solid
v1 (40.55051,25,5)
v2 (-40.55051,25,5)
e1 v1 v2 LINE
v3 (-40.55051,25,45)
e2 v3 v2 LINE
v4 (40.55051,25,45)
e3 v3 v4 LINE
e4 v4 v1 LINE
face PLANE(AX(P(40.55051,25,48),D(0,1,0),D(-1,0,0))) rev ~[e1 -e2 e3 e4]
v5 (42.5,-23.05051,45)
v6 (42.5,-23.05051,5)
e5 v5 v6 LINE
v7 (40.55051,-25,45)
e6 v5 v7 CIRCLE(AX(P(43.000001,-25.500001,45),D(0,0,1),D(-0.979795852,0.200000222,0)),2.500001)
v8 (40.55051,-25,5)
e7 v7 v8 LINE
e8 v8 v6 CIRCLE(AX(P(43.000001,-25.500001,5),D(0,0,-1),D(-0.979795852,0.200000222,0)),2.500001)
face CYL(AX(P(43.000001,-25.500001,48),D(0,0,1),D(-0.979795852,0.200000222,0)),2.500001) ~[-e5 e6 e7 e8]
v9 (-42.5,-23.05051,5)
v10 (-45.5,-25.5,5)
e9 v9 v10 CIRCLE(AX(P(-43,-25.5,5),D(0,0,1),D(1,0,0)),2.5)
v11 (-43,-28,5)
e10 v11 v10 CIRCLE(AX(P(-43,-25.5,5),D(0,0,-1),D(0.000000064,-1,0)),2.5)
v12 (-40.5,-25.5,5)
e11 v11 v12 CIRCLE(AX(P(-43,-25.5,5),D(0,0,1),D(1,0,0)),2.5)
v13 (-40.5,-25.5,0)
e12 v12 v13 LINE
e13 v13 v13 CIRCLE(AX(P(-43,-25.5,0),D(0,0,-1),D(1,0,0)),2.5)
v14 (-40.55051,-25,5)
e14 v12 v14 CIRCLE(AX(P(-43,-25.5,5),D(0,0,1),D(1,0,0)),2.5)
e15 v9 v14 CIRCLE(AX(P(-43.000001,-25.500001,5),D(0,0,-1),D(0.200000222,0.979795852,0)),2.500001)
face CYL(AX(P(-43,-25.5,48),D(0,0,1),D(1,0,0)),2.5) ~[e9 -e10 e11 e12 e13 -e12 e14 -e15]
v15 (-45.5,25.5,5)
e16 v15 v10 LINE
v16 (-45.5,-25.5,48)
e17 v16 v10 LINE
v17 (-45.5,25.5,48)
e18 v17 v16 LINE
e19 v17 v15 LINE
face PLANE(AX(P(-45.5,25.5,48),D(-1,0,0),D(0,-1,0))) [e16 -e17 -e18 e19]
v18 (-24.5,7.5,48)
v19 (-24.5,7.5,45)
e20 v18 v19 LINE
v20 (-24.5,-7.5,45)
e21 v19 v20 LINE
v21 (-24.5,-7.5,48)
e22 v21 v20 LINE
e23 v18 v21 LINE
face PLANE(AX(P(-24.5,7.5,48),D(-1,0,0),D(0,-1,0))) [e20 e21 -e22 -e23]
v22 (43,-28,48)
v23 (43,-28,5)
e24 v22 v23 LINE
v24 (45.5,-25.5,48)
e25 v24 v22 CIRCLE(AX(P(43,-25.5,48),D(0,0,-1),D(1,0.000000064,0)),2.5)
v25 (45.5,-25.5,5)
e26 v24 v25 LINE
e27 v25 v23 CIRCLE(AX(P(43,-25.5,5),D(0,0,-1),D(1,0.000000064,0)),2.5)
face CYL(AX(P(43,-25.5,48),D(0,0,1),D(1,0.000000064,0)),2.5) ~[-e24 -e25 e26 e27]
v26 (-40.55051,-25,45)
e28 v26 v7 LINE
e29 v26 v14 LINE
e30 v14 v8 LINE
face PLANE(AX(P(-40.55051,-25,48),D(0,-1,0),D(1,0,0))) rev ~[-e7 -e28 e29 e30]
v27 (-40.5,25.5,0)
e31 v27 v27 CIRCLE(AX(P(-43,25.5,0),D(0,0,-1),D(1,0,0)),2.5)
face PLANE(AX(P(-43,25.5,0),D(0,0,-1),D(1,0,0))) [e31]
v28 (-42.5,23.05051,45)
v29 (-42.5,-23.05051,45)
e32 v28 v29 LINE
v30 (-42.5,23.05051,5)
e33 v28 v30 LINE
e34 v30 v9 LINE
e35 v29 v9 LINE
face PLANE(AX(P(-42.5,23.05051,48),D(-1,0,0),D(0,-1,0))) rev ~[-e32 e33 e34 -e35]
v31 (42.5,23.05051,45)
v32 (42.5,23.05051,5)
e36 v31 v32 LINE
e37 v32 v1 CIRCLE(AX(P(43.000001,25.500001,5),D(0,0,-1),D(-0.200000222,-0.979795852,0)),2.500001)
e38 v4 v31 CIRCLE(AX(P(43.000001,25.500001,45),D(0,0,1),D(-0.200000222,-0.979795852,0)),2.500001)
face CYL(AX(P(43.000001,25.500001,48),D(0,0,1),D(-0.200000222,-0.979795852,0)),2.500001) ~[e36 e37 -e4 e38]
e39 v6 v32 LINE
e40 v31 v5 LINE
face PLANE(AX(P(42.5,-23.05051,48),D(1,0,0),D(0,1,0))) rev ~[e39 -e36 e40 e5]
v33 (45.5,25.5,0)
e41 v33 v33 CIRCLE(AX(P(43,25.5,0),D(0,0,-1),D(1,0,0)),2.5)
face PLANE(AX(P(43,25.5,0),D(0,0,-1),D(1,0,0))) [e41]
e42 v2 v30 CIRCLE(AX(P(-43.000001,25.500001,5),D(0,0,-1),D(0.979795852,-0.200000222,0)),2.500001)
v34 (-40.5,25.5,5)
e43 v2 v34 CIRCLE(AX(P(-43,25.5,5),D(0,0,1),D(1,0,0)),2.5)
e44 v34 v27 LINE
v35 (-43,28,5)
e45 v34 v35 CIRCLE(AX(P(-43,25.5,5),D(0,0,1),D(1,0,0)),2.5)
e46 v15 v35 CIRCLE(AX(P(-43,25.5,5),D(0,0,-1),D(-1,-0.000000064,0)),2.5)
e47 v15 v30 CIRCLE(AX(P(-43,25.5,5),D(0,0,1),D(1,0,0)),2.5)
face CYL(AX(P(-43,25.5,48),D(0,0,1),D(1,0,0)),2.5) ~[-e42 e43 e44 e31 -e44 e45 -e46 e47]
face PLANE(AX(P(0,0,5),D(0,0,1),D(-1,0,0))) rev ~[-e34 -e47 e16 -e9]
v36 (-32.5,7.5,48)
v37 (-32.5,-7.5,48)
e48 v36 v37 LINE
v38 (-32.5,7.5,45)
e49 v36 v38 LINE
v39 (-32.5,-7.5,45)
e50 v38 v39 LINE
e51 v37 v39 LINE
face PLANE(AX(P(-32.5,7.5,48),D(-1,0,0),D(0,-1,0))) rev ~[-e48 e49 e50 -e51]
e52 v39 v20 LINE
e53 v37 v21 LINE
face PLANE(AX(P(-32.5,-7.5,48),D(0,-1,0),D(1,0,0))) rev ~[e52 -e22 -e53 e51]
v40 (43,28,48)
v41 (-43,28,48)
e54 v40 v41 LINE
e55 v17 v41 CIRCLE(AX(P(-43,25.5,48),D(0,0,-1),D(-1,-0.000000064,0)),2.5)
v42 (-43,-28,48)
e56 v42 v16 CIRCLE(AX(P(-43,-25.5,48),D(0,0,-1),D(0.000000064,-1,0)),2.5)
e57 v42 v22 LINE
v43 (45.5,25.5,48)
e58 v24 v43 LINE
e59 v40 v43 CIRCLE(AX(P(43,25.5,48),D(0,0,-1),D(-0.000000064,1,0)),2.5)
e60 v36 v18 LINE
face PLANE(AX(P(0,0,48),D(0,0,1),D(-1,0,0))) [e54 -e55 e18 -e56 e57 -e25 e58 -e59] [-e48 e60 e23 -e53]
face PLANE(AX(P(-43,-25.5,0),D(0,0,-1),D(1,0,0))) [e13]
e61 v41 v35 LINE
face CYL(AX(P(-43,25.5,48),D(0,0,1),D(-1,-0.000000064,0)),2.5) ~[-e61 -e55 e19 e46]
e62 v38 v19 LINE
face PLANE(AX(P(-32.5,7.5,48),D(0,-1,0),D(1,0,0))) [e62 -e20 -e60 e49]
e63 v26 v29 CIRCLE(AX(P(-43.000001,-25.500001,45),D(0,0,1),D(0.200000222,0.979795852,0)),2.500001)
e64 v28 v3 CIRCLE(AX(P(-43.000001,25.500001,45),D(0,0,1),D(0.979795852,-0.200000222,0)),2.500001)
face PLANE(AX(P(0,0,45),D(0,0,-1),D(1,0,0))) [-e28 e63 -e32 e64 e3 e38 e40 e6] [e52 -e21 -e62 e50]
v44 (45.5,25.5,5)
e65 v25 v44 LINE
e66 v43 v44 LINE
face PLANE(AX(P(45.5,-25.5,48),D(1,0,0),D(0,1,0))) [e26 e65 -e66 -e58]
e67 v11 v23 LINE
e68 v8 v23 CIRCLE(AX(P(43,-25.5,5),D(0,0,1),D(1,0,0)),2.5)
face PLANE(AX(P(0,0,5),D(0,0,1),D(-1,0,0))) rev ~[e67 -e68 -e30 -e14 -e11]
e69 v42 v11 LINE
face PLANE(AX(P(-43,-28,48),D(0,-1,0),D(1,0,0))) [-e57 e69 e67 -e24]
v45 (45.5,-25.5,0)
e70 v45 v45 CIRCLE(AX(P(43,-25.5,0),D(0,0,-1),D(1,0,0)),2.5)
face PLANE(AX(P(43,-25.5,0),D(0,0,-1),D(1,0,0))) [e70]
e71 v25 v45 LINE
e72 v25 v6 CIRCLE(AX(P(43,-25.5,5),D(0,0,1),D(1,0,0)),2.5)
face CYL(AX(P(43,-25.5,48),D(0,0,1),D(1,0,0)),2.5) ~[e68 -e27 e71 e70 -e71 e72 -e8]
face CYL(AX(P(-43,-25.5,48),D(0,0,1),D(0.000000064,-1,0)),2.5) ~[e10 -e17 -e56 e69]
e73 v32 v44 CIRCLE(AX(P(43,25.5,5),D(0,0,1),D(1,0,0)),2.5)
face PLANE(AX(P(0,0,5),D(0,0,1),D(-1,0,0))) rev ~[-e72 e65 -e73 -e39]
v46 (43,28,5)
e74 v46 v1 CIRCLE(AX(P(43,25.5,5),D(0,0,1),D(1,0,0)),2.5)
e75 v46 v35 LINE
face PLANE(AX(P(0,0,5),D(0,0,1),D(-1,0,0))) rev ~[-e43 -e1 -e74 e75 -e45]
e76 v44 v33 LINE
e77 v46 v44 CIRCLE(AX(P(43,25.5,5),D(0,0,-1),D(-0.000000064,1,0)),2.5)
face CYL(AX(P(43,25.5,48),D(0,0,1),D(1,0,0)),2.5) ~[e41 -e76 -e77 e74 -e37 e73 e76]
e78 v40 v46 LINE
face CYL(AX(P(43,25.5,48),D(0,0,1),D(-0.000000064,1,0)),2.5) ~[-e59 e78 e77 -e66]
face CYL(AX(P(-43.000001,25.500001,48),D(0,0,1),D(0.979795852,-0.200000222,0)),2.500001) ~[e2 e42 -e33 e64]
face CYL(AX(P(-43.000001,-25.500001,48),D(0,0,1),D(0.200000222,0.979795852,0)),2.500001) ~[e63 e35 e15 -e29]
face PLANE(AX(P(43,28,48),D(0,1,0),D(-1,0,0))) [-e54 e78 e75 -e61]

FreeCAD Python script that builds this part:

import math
import FreeCAD as App
import Part
import Sketcher
from FreeCAD import Vector


def add_polygon(sketch, points):
    """Adds a closed chain of lines whose ends are joined by coincident constraints."""
    first, n = sketch.GeometryCount, len(points)
    for a, b in zip(points, points[1:] + points[:1]):
        sketch.addGeometry(Part.LineSegment(App.Vector(*a, 0), App.Vector(*b, 0)), False)
    for i in range(n):
        sketch.addConstraint(Sketcher.Constraint("Coincident", first + i, 2, first + (i + 1) % n, 1))

doc = App.newDocument("Part")
body = doc.addObject("PartDesign::Body", "Body")

# Sketch on XZ plane
sketch1 = body.newObject("Sketcher::SketchObject", "Sketch")
sketch1.AttachmentSupport = (doc.getObject("XZ_Plane"), [""])
sketch1.MapMode = "FlatFace"
sketch1.addGeometry(Part.LineSegment(Vector(43, 28, 0), Vector(-43, 28, 0)), False)
sketch1.addGeometry(Part.ArcOfCircle(Part.Circle(Vector(-43, 25.5, 0), Vector(0, 0, 1), 2.5), math.radians(89.999996), math.radians(180.000004)), False)
sketch1.addGeometry(Part.LineSegment(Vector(-45.5, 25.5, 0), Vector(-45.5, -25.5, 0)), False)
sketch1.addGeometry(Part.ArcOfCircle(Part.Circle(Vector(-43, -25.5, 0), Vector(0, 0, 1), 2.5), math.radians(179.999996), math.radians(270.000004)), False)
sketch1.addGeometry(Part.LineSegment(Vector(-43, -28, 0), Vector(43, -28, 0)), False)
sketch1.addGeometry(Part.ArcOfCircle(Part.Circle(Vector(43, -25.5, 0), Vector(0, 0, 1), 2.5), math.radians(-90.000004), math.radians(0.000004)), False)
sketch1.addGeometry(Part.LineSegment(Vector(45.5, -25.5, 0), Vector(45.5, 25.5, 0)), False)
sketch1.addGeometry(Part.ArcOfCircle(Part.Circle(Vector(43, 25.5, 0), Vector(0, 0, 1), 2.5), math.radians(-0.000004), math.radians(90.000004)), False)
sketch1.addGeometry(Part.LineSegment(Vector(-40.55051, 25, 0), Vector(40.55051, 25, 0)), False)
sketch1.addGeometry(Part.ArcOfCircle(Part.Circle(Vector(43.000001, 25.500001, 0), Vector(0, 0, 1), 2.500001), math.radians(-168.463028), math.radians(-101.536972)), False)
sketch1.addGeometry(Part.LineSegment(Vector(42.5, 23.05051, 0), Vector(42.5, -23.05051, 0)), False)
sketch1.addGeometry(Part.ArcOfCircle(Part.Circle(Vector(43.000001, -25.500001, 0), Vector(0, 0, 1), 2.500001), math.radians(101.536972), math.radians(168.463028)), False)
sketch1.addGeometry(Part.LineSegment(Vector(40.55051, -25, 0), Vector(-40.55051, -25, 0)), False)
sketch1.addGeometry(Part.ArcOfCircle(Part.Circle(Vector(-43.000001, -25.500001, 0), Vector(0, 0, 1), 2.500001), math.radians(11.536972), math.radians(78.463028)), False)
sketch1.addGeometry(Part.LineSegment(Vector(-42.5, -23.05051, 0), Vector(-42.5, 23.05051, 0)), False)
sketch1.addGeometry(Part.ArcOfCircle(Part.Circle(Vector(-43.000001, 25.500001, 0), Vector(0, 0, 1), 2.500001), math.radians(-78.463028), math.radians(-11.536972)), False)
sketch1.addConstraint(Sketcher.Constraint("Tangent", 0, 2, 1, 1))
sketch1.addConstraint(Sketcher.Constraint("Tangent", 1, 2, 2, 1))
sketch1.addConstraint(Sketcher.Constraint("Tangent", 2, 2, 3, 1))
sketch1.addConstraint(Sketcher.Constraint("Tangent", 3, 2, 4, 1))
sketch1.addConstraint(Sketcher.Constraint("Tangent", 4, 2, 5, 1))
sketch1.addConstraint(Sketcher.Constraint("Tangent", 5, 2, 6, 1))
sketch1.addConstraint(Sketcher.Constraint("Tangent", 6, 2, 7, 1))
sketch1.addConstraint(Sketcher.Constraint("Tangent", 7, 2, 0, 1))
sketch1.addConstraint(Sketcher.Constraint("Coincident", 8, 2, 9, 1))
sketch1.addConstraint(Sketcher.Constraint("Coincident", 9, 2, 10, 1))
sketch1.addConstraint(Sketcher.Constraint("Coincident", 10, 2, 11, 1))
sketch1.addConstraint(Sketcher.Constraint("Coincident", 11, 2, 12, 1))
sketch1.addConstraint(Sketcher.Constraint("Coincident", 12, 2, 13, 1))
sketch1.addConstraint(Sketcher.Constraint("Coincident", 13, 2, 14, 1))
sketch1.addConstraint(Sketcher.Constraint("Coincident", 14, 2, 15, 1))
sketch1.addConstraint(Sketcher.Constraint("Coincident", 15, 2, 8, 1))
sketch1.addConstraint(Sketcher.Constraint("Horizontal", 0))
sketch1.addConstraint(Sketcher.Constraint("Vertical", 2))
sketch1.addConstraint(Sketcher.Constraint("Horizontal", 4))
sketch1.addConstraint(Sketcher.Constraint("Vertical", 6))
sketch1.addConstraint(Sketcher.Constraint("Horizontal", 8))
sketch1.addConstraint(Sketcher.Constraint("Vertical", 10))
sketch1.addConstraint(Sketcher.Constraint("Horizontal", 12))
sketch1.addConstraint(Sketcher.Constraint("Vertical", 14))
sketch1.addConstraint(Sketcher.Constraint("Coincident", 9, 3, 7, 3))
sketch1.addConstraint(Sketcher.Constraint("Coincident", 11, 3, 5, 3))
sketch1.addConstraint(Sketcher.Constraint("Coincident", 13, 3, 3, 3))
sketch1.addConstraint(Sketcher.Constraint("Coincident", 15, 3, 1, 3))
sketch1.addConstraint(Sketcher.Constraint("Equal", 1, 3))
sketch1.addConstraint(Sketcher.Constraint("Equal", 3, 5))
sketch1.addConstraint(Sketcher.Constraint("Equal", 5, 7))
sketch1.addConstraint(Sketcher.Constraint("Equal", 7, 9))
sketch1.addConstraint(Sketcher.Constraint("Equal", 9, 11))
sketch1.addConstraint(Sketcher.Constraint("Equal", 11, 13))
sketch1.addConstraint(Sketcher.Constraint("Equal", 13, 15))
sketch1.addConstraint(Sketcher.Constraint("Symmetric", 1, 3, 5, 3, -1, 1))
sketch1.addConstraint(Sketcher.Constraint("Horizontal", 10, 2, 13, 2))
sketch1.addConstraint(Sketcher.Constraint("Vertical", 8, 2, 11, 2))
sketch1.addConstraint(Sketcher.Constraint("Radius", 1, 2.5))
sketch1.addConstraint(Sketcher.Constraint("DistanceX", 0, 2, 0, 1, 86.0))
sketch1.addConstraint(Sketcher.Constraint("DistanceY", 2, 2, 2, 1, 51.0))
sketch1.addConstraint(Sketcher.Constraint("DistanceY", -1, 1, 8, 2, 25.0))
sketch1.addConstraint(Sketcher.Constraint("DistanceX", 9, 2, 6, 2, 3.0))
pad1 = body.newObject("PartDesign::Pad", "Pad")
pad1.Profile = sketch1
pad1.Length = 43

# Sketch on XZ plane
sketch2 = body.newObject("Sketcher::SketchObject", "Sketch001")
sketch2.AttachmentSupport = (doc.getObject("XZ_Plane"), [""])
sketch2.MapMode = "FlatFace"
add_polygon(sketch2, [(-42.5, 25), (-42.5, -25), (42.5, -25), (42.5, 25)])  # lines 0-3
add_polygon(sketch2, [(-24.5, -7.5), (-32.5, -7.5), (-32.5, 7.5), (-24.5, 7.5)])  # lines 4-7
sketch2.addConstraint(Sketcher.Constraint("Vertical", 0))
sketch2.addConstraint(Sketcher.Constraint("Horizontal", 1))
sketch2.addConstraint(Sketcher.Constraint("Vertical", 2))
sketch2.addConstraint(Sketcher.Constraint("Horizontal", 3))
sketch2.addConstraint(Sketcher.Constraint("Horizontal", 4))
sketch2.addConstraint(Sketcher.Constraint("Vertical", 5))
sketch2.addConstraint(Sketcher.Constraint("Horizontal", 6))
sketch2.addConstraint(Sketcher.Constraint("Vertical", 7))
sketch2.addConstraint(Sketcher.Constraint("Symmetric", 0, 2, 2, 2, -1, 1))
sketch2.addConstraint(Sketcher.Constraint("DistanceX", 1, 1, 1, 2, 85.0))
sketch2.addConstraint(Sketcher.Constraint("DistanceX", 4, 2, 4, 1, 8.0))
sketch2.addConstraint(Sketcher.Constraint("DistanceY", 0, 2, 0, 1, 50.0))
sketch2.addConstraint(Sketcher.Constraint("DistanceY", 5, 1, 5, 2, 15.0))
sketch2.addConstraint(Sketcher.Constraint("DistanceX", 0, 2, 4, 2, 10.0))
sketch2.addConstraint(Sketcher.Constraint("DistanceY", 4, 2, -1, 1, 7.5))
pad2 = body.newObject("PartDesign::Pad", "Pad001")
pad2.Profile = sketch2
pad2.Length = 3

# Sketch on XZ plane
sketch3 = body.newObject("Sketcher::SketchObject", "Sketch002")
sketch3.AttachmentSupport = (doc.getObject("XZ_Plane"), [""])
sketch3.MapMode = "FlatFace"
sketch3.addGeometry(Part.Circle(Vector(-43, 25.5, 0), Vector(0, 0, 1), 2.5), False)
sketch3.addGeometry(Part.Circle(Vector(43, 25.5, 0), Vector(0, 0, 1), 2.5), False)
sketch3.addGeometry(Part.Circle(Vector(43, -25.5, 0), Vector(0, 0, 1), 2.5), False)
sketch3.addGeometry(Part.Circle(Vector(-43, -25.5, 0), Vector(0, 0, 1), 2.5), False)
sketch3.addConstraint(Sketcher.Constraint("Equal", 0, 1))
sketch3.addConstraint(Sketcher.Constraint("Equal", 1, 2))
sketch3.addConstraint(Sketcher.Constraint("Equal", 2, 3))
sketch3.addConstraint(Sketcher.Constraint("Symmetric", 0, 3, 2, 3, -1, 1))
sketch3.addConstraint(Sketcher.Constraint("Symmetric", 1, 3, 3, 3, -1, 1))
sketch3.addConstraint(Sketcher.Constraint("Symmetric", 0, 3, 1, 3, -2))
sketch3.addConstraint(Sketcher.Constraint("Diameter", 0, 5.0))
sketch3.addConstraint(Sketcher.Constraint("DistanceX", 0, 3, -1, 1, 43.0))
sketch3.addConstraint(Sketcher.Constraint("DistanceY", 2, 3, 1, 3, 51.0))
pad3 = body.newObject("PartDesign::Pad", "Pad002")
pad3.Profile = sketch3
pad3.Length = 48
body2 = doc.addObject("PartDesign::Body", "Body001")
doc.recompute()

body.Placement = App.Placement(Vector(0, 0, 48), App.Rotation(Vector(1, 0, 0), 90))
boolean = body2.newObject("PartDesign::Boolean", "Boolean")
boolean.Type = "Fuse"
boolean.addObjects([body])

doc.recompute()
